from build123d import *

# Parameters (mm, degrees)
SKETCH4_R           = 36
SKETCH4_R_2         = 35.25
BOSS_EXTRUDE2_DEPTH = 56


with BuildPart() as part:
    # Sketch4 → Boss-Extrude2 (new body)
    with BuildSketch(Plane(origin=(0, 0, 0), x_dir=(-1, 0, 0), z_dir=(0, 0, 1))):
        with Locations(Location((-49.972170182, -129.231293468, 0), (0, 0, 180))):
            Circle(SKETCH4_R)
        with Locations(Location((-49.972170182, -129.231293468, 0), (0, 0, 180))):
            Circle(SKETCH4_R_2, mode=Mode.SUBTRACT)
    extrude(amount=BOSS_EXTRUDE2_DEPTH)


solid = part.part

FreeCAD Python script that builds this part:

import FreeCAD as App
import Part
import Sketcher

V = App.Vector

doc = App.newDocument("Part")
body = doc.addObject("PartDesign::Body", "Body")

# Sketch on XY plane
sketch1 = doc.addObject("Sketcher::SketchObject", "Sketch")
body.addObject(sketch1)
sketch1.AttachmentSupport = (doc.XY_Plane, [""])
sketch1.MapMode = "FlatFace"
sketch1.addGeometry([
    Part.Circle(V(50, 129, 0), V(0, 0, 1), 36),
    Part.Circle(V(50, 129, 0), V(0, 0, 1), 35),
], False)
sketch1.addConstraint([
    Sketcher.Constraint("Coincident", 1, 3, 0, 3),
    Sketcher.Constraint("Diameter", 0, 72.0),
    Sketcher.Constraint("Diameter", 1, 70.5),
    Sketcher.Constraint("DistanceX", -1, 1, 0, 3, 49.97217),
    Sketcher.Constraint("DistanceY", -1, 1, 0, 3, 129.231293),
])
pad1 = doc.addObject("PartDesign::Pad", "Pad")
body.addObject(pad1)
pad1.Profile = sketch1
pad1.Length = 56

doc.recompute()
